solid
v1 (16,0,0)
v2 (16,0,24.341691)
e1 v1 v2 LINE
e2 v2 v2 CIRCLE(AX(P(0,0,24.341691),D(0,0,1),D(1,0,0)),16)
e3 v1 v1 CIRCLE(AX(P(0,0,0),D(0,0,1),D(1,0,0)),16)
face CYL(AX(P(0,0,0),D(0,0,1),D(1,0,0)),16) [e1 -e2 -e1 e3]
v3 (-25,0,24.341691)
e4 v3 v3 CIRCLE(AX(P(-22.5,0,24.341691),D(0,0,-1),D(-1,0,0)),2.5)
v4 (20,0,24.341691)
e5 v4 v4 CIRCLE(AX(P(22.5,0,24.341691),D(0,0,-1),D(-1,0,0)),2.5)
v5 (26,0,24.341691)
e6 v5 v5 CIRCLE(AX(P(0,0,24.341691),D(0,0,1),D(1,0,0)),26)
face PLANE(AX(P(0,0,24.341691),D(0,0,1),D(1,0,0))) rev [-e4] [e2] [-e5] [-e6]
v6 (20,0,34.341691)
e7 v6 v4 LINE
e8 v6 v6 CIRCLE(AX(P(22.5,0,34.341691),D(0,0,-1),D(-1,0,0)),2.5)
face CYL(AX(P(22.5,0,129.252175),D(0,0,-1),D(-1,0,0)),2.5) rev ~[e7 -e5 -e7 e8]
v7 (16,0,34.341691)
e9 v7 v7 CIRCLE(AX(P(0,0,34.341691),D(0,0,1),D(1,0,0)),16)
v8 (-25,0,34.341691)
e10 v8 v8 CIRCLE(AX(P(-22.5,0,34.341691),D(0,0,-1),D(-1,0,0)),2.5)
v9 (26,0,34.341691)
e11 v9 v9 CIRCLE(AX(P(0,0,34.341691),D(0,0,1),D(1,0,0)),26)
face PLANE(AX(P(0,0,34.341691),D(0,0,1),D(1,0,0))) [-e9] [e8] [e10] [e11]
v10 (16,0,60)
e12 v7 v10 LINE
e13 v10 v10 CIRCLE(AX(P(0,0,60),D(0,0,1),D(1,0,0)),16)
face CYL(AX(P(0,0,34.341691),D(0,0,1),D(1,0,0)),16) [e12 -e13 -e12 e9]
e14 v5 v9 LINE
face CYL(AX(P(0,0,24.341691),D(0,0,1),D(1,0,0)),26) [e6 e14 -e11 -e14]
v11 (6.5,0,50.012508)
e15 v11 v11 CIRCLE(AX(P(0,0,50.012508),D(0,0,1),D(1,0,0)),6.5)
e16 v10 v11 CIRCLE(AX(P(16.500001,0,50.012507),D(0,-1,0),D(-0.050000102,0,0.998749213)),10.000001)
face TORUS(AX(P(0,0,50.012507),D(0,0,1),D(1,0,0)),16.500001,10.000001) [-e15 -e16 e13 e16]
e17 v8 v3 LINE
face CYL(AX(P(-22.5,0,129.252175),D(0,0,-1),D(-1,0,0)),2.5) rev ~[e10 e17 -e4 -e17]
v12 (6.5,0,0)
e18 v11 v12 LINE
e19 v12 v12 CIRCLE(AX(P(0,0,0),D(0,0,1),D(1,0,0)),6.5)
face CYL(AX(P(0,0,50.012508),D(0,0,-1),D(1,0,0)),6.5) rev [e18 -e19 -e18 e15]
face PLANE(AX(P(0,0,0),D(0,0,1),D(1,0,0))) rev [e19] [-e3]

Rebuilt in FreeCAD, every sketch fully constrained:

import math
import FreeCAD as App
import Part
import Sketcher
Q = App.Units.Quantity

doc = App.newDocument("Part")
params = doc.addObject("Spreadsheet::Sheet", "Params")
for row, (alias, value) in enumerate([
    ("sketch1_radius", "10.000001 mm"),
    ("sketch1_width", "10 mm"),
    ("sketch1_width2", "9.5 mm"),
    ("revolution_angle", "360 deg"),
    ("sketch2_diameter", "5 mm"),
    ("hole_diameter", "5 mm"),
], start=1):
    params.set(f"A{row}", alias)
    params.set(f"B{row}", "=" + value)
    params.setAlias(f"B{row}", alias)

body = doc.addObject("PartDesign::Body", "Body")

sketch1 = body.newObject("Sketcher::SketchObject", "Sketch")
sketch1.AttachmentSupport = (doc.getObject("XZ_Plane"), [""])
sketch1.MapMode = "FlatFace"
sketch1.addGeometry([
    Part.LineSegment(App.Vector(6.5, 50.012508, 0), App.Vector(6.5, 0, 0)),
    Part.LineSegment(App.Vector(6.5, 0, 0), App.Vector(16, 0, 0)),
    Part.LineSegment(App.Vector(16, 0, 0), App.Vector(16, 24.341691, 0)),
    Part.LineSegment(App.Vector(16, 24.341691, 0), App.Vector(26, 24.341691, 0)),
    Part.LineSegment(App.Vector(26, 24.341691, 0), App.Vector(26, 34.341691, 0)),
    Part.LineSegment(App.Vector(26, 34.341691, 0), App.Vector(16, 34.341691, 0)),
    Part.LineSegment(App.Vector(16, 34.341691, 0), App.Vector(16, 60, 0)),
    Part.ArcOfCircle(Part.Circle(App.Vector(16.500001, 50.012507, 0), App.Vector(0, 0, 1), 10.000001), math.radians(92.86599), math.radians(179.999993)),
], False)
sketch1.addConstraint([
    Sketcher.Constraint("Coincident", 0, 2, 1, 1),
    Sketcher.Constraint("Coincident", 1, 2, 2, 1),
    Sketcher.Constraint("Coincident", 2, 2, 3, 1),
    Sketcher.Constraint("Coincident", 3, 2, 4, 1),
    Sketcher.Constraint("Coincident", 4, 2, 5, 1),
    Sketcher.Constraint("Coincident", 5, 2, 6, 1),
    Sketcher.Constraint("Coincident", 6, 2, 7, 1),
    Sketcher.Constraint("Tangent", 7, 2, 0, 1),
    Sketcher.Constraint("Vertical", 0),
    Sketcher.Constraint("Horizontal", 1),
    Sketcher.Constraint("Vertical", 2),
    Sketcher.Constraint("Horizontal", 3),
    Sketcher.Constraint("Vertical", 4),
    Sketcher.Constraint("Horizontal", 5),
    Sketcher.Constraint("Vertical", 6),
    Sketcher.Constraint("PointOnObject", 0, 2, -1),
    Sketcher.Constraint("Vertical", 2, 2, 5, 2),
    Sketcher.Constraint("Equal", 5, 4),
    Sketcher.Constraint("Radius", 7, Q("10.000001 mm")),
    Sketcher.Constraint("DistanceX", 3, 1, 3, 2, Q("10 mm")),
    Sketcher.Constraint("DistanceX", 1, 1, 1, 2, Q("9.5 mm")),
    Sketcher.Constraint("DistanceX", -1, 1, 1, 2, Q("16 mm")),
    Sketcher.Constraint("DistanceY", -1, 1, 6, 2, Q("60 mm")),
    Sketcher.Constraint("DistanceY", 2, 1, 2, 2, Q("24.341691 mm")),
])
sketch1.setExpression("Constraints[18]", "Params.sketch1_radius")
sketch1.setExpression("Constraints[19]", "Params.sketch1_width")
sketch1.setExpression("Constraints[20]", "Params.sketch1_width2")
revolution = body.newObject("PartDesign::Revolution", "Revolution")
revolution.Profile = sketch1
revolution.ReferenceAxis = (sketch1, ["V_Axis"])
revolution.setExpression("Angle", "Params.revolution_angle")

sketch2 = body.newObject("Sketcher::SketchObject", "Sketch001")
sketch2.AttachmentSupport = (doc.getObject("XY_Plane"), [""])
sketch2.MapMode = "FlatFace"
sketch2.AttachmentOffset = App.Placement(App.Vector(0, 0, 34.341691), App.Rotation())
sketch2.addGeometry([
    Part.Circle(App.Vector(-22.5, 0, 0), App.Vector(0, 0, 1), 2.5),
    Part.Circle(App.Vector(22.5, 0, 0), App.Vector(0, 0, 1), 2.5),
], False)
sketch2.addConstraint([
    Sketcher.Constraint("Equal", 0, 1),
    Sketcher.Constraint("Symmetric", 0, 3, 1, 3, -1, 1),
    Sketcher.Constraint("PointOnObject", 0, 3, -1),
    Sketcher.Constraint("Diameter", 0, Q("5 mm")),
    Sketcher.Constraint("DistanceX", 0, 3, 1, 3, Q("45 mm")),
])
sketch2.setExpression("Constraints[3]", "Params.sketch2_diameter")
doc.recompute()
hole = body.newObject("PartDesign::Hole", "Hole")
hole.Profile = sketch2
hole.ThreadType = "None"
hole.setExpression("Diameter", "Params.hole_diameter")
hole.DepthType = "ThroughAll"

doc.recompute()
